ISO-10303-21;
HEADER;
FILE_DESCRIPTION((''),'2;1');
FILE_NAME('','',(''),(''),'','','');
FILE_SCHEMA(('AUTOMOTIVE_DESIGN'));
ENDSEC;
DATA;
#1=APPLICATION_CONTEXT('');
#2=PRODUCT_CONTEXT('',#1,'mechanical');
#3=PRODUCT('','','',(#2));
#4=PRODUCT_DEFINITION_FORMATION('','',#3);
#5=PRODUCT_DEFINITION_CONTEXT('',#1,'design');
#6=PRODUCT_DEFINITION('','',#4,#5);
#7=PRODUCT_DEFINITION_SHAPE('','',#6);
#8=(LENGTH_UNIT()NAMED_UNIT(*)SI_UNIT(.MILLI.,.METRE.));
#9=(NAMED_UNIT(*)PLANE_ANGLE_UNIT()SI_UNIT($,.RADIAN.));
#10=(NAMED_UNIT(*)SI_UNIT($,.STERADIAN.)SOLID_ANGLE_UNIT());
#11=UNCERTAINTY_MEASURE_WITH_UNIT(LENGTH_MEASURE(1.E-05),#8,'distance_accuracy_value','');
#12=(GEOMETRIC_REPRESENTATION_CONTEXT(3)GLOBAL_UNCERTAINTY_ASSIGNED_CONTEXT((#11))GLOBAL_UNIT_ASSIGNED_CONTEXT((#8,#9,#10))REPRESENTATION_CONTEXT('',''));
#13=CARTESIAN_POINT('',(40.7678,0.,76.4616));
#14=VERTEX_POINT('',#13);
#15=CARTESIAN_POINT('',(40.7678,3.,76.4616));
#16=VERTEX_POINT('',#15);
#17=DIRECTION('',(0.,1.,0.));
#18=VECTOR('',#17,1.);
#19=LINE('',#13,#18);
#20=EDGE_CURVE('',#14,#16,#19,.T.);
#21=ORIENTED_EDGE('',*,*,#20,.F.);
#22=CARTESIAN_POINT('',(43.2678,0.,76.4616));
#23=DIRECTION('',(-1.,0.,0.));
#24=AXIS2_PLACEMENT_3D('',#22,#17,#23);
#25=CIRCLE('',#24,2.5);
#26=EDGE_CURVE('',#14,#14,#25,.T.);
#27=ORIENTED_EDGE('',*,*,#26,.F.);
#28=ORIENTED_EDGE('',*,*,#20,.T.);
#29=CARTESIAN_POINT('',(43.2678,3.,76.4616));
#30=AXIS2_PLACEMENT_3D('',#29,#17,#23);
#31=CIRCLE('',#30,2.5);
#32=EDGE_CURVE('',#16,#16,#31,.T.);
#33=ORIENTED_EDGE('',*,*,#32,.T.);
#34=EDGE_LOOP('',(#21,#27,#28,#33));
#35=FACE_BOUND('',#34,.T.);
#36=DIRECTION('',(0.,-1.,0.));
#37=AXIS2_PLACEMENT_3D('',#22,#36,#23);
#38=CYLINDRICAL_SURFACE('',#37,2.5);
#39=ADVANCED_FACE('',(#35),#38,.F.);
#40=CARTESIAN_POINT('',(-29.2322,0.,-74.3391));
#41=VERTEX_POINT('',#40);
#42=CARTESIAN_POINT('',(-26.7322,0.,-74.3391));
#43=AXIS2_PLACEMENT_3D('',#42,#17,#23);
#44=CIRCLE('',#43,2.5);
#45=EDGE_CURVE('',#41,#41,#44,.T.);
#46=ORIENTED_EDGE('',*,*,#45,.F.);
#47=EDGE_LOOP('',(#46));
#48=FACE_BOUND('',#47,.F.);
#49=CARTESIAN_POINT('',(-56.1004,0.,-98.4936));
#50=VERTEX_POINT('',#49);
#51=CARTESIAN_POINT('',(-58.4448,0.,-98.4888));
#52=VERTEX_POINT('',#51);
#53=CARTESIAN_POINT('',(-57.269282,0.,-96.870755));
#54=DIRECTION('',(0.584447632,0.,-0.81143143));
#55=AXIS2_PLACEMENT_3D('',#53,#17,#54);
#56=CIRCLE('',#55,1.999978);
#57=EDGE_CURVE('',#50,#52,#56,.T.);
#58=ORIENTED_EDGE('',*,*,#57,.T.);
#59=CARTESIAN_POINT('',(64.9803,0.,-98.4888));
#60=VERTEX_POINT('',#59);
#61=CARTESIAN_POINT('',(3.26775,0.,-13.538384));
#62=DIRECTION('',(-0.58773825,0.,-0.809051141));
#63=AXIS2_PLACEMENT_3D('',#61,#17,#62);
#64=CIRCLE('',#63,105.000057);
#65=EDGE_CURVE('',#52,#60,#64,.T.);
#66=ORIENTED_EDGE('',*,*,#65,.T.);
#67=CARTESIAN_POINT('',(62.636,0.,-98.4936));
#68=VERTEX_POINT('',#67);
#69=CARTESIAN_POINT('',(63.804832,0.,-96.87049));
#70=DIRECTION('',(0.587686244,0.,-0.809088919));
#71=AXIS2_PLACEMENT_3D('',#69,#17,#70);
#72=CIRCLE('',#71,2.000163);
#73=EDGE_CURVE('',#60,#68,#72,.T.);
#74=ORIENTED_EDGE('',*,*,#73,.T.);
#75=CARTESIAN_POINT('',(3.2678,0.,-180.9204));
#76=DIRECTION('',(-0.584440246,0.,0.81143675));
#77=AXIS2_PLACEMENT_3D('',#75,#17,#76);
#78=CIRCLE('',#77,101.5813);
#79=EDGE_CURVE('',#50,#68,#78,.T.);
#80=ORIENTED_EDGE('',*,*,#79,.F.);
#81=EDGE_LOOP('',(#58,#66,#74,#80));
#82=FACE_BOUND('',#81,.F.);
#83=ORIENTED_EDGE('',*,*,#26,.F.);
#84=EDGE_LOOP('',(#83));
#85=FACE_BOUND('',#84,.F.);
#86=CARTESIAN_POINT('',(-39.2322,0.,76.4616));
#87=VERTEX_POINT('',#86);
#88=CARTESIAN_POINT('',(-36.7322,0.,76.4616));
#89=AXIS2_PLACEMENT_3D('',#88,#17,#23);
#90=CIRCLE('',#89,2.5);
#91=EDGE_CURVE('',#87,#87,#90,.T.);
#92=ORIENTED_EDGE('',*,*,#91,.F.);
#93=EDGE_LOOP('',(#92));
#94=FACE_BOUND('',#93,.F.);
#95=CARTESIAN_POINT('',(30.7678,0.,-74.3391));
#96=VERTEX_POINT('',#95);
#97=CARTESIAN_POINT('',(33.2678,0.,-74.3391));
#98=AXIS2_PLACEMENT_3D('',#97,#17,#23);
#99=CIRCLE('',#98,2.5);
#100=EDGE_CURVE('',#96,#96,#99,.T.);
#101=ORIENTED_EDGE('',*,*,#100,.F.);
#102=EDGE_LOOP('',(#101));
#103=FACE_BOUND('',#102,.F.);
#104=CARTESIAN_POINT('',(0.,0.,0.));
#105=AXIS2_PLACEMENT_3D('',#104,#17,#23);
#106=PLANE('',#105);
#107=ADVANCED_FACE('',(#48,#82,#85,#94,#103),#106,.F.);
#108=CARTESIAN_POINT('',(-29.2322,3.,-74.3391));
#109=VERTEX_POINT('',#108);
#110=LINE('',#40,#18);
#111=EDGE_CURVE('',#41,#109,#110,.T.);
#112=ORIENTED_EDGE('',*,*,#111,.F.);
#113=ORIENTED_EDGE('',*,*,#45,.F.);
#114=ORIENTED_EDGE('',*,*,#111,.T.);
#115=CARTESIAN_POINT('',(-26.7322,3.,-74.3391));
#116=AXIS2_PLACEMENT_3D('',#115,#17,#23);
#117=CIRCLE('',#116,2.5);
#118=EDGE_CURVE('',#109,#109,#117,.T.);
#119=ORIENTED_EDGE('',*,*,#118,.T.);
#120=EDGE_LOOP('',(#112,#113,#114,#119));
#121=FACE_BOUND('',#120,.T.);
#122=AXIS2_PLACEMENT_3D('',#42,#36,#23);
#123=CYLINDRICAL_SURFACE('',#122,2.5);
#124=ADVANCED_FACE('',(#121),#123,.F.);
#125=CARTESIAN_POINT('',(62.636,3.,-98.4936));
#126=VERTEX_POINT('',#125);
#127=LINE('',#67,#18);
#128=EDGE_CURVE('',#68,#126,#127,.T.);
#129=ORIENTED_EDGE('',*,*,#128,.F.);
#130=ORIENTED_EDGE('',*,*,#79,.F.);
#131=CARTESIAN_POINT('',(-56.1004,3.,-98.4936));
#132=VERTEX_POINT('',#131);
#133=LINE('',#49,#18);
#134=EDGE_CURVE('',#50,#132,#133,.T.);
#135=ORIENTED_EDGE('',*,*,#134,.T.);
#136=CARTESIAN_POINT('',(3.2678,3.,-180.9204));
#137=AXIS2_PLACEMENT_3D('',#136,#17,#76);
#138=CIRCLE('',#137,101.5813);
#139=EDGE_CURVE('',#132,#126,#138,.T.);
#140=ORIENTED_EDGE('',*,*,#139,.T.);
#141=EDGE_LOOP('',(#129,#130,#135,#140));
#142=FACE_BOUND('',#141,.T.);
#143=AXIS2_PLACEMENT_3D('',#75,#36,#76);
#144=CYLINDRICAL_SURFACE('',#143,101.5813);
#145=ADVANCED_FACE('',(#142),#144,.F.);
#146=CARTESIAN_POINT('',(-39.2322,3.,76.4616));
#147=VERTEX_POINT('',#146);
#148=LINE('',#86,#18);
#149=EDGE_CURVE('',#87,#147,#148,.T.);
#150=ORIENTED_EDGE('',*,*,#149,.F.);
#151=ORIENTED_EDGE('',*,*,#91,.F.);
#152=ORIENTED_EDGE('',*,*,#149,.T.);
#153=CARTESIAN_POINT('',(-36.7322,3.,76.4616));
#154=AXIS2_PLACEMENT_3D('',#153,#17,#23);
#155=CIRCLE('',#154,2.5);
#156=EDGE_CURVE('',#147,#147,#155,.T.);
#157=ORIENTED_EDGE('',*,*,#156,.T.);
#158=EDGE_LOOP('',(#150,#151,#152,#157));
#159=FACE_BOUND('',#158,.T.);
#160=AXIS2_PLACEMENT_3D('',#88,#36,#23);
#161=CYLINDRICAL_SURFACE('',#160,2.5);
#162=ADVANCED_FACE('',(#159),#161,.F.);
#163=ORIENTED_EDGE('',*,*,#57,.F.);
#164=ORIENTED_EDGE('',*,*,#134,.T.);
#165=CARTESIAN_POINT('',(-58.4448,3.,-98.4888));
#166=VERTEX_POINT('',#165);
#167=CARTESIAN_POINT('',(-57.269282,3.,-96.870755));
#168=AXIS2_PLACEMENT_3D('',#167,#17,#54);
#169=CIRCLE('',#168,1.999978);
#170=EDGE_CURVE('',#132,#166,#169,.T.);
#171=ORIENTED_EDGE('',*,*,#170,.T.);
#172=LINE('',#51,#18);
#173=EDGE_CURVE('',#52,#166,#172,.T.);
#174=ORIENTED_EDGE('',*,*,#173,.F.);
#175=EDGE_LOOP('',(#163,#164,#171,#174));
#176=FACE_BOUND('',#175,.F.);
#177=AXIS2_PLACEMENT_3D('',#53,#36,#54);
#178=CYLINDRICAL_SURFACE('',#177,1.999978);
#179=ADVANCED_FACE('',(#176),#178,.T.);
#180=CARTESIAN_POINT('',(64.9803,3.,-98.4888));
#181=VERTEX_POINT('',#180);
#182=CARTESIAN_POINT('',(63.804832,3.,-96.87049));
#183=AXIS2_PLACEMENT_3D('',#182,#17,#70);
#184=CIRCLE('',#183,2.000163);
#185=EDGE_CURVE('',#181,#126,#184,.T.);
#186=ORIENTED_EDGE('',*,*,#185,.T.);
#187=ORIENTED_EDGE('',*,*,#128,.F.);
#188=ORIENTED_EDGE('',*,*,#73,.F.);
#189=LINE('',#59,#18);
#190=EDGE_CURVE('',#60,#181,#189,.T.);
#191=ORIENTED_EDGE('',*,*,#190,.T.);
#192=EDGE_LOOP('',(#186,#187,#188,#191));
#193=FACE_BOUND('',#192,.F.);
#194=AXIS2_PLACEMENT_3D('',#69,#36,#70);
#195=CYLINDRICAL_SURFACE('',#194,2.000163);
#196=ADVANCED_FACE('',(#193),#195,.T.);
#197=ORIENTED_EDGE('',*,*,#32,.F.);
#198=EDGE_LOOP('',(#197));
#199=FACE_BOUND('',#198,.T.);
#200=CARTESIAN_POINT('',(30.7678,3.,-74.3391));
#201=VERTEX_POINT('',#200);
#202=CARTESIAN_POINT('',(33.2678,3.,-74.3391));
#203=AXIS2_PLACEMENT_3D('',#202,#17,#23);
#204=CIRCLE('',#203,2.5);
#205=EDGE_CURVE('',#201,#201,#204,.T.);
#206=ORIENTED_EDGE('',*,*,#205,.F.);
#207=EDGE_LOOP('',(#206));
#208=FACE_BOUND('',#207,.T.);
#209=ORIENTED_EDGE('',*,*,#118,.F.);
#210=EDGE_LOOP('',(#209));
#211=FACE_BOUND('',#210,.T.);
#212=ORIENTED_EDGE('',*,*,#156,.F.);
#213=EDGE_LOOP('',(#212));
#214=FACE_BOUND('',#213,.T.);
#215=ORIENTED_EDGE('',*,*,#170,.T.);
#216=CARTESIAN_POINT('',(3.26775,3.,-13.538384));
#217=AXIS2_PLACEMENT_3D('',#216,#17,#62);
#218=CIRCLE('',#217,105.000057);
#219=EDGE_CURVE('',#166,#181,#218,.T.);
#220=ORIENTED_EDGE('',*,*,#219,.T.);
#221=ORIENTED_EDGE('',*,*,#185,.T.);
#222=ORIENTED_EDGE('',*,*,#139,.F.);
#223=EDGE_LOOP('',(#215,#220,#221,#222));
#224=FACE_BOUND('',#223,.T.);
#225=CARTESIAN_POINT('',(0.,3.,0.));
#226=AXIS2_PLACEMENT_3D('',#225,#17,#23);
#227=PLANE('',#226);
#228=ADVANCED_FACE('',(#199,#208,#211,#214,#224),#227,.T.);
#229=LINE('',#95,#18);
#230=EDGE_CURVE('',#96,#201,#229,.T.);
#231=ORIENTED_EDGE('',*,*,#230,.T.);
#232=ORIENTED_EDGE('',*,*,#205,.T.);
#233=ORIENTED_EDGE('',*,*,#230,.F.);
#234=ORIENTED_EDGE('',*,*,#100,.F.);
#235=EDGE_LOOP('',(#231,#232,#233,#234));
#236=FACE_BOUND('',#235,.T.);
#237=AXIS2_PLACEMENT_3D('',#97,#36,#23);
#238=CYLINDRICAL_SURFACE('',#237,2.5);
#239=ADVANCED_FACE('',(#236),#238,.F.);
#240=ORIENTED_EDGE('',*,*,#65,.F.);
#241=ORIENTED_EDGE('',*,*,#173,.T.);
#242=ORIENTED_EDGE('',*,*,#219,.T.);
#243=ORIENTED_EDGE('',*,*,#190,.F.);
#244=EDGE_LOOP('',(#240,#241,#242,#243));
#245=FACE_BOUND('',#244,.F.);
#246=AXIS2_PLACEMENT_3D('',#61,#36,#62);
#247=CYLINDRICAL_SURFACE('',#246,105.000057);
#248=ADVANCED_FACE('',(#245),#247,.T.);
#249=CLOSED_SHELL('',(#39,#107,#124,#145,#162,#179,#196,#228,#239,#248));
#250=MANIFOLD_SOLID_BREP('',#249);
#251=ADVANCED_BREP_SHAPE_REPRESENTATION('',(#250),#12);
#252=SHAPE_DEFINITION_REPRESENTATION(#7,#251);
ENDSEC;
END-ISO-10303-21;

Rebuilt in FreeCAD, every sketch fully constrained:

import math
import FreeCAD as App
import Part
import Sketcher

V = App.Vector

doc = App.newDocument("Part")
body = doc.addObject("PartDesign::Body", "Body")

# Sketch on XZ plane
sketch1 = doc.addObject("Sketcher::SketchObject", "Sketch")
body.addObject(sketch1)
sketch1.AttachmentSupport = (doc.XZ_Plane, [""])
sketch1.MapMode = "FlatFace"
sketch1.addGeometry(Part.ArcOfCircle(Part.Circle(V(3.2678, -180.9204, 0), V(0, 0, 1), 101.5813), math.radians(54.236544), math.radians(125.763456)), False)
sketch1.addGeometry(Part.ArcOfCircle(Part.Circle(V(-57.2693, -96.8707, 0), V(0, 0, 1), 2.000033), math.radians(-125.997254), math.radians(-54.236534)), False)
sketch1.addGeometry(Part.ArcOfCircle(Part.Circle(V(3.2678, -13.5384, 0), V(0, 0, 1), 105.000074), math.radians(-54.003346), math.radians(234.003301)), False)
sketch1.addGeometry(Part.ArcOfCircle(Part.Circle(V(63.8049, -96.8707, 0), V(0, 0, 1), 1.999953), math.radians(-125.763466), math.radians(-54.005063)), False)
sketch1.addGeometry(Part.Circle(V(33.2678, -74.3391, 0), V(0, 0, 1), 2.5), False)
sketch1.addGeometry(Part.Circle(V(-26.7322, -74.3391, 0), V(0, 0, 1), 2.5), False)
sketch1.addGeometry(Part.Circle(V(43.2678, 76.4616, 0), V(0, 0, 1), 2.5), False)
sketch1.addGeometry(Part.Circle(V(-36.7322, 76.4616, 0), V(0, 0, 1), 2.5), False)
sketch1.addConstraint(Sketcher.Constraint("Coincident", 0, 2, 1, 2))
sketch1.addConstraint(Sketcher.Constraint("Coincident", 1, 1, 2, 2))
sketch1.addConstraint(Sketcher.Constraint("Coincident", 2, 1, 3, 2))
sketch1.addConstraint(Sketcher.Constraint("Coincident", 3, 1, 0, 1))
sketch1.addConstraint(Sketcher.Constraint("Diameter", 4, 5.0))
sketch1.addConstraint(Sketcher.Constraint("Diameter", 5, 5.0))
sketch1.addConstraint(Sketcher.Constraint("Diameter", 6, 5.0))
sketch1.addConstraint(Sketcher.Constraint("Diameter", 7, 5.0))
sketch1.addConstraint(Sketcher.Constraint("Radius", 1, 2.0))
sketch1.addConstraint(Sketcher.Constraint("Radius", 2, 105.0))
sketch1.addConstraint(Sketcher.Constraint("Radius", 3, 2.0))
sketch1.addConstraint(Sketcher.Constraint("DistanceX", 2, 3, 6, 3, 40.0))
sketch1.addConstraint(Sketcher.Constraint("DistanceY", 2, 3, 6, 3, 90.0))
sketch1.addConstraint(Sketcher.Constraint("DistanceX", 7, 3, 2, 3, 40.0))
sketch1.addConstraint(Sketcher.Constraint("DistanceY", 2, 3, 7, 3, 90.0))
sketch1.addConstraint(Sketcher.Constraint("DistanceX", 2, 3, 4, 3, 30.0))
sketch1.addConstraint(Sketcher.Constraint("DistanceX", 0, 3, 4, 3, 30.0))
sketch1.addConstraint(Sketcher.Constraint("DistanceX", 5, 3, 4, 3, 60.0))
sketch1.addConstraint(Sketcher.Constraint("Radius", 0, 101.5813))
sketch1.addConstraint(Sketcher.Constraint("DistanceX", -1, 1, 3, 3, 63.805))
sketch1.addConstraint(Sketcher.Constraint("DistanceY", 4, 3, -1, 1, 74.339))
sketch1.addConstraint(Sketcher.Constraint("DistanceY", 5, 3, -1, 1, 74.339))
sketch1.addConstraint(Sketcher.Constraint("DistanceX", -1, 1, 3, 1, 62.636))
sketch1.addConstraint(Sketcher.Constraint("DistanceX", 1, 3, 0, 3, 60.537))
sketch1.addConstraint(Sketcher.Constraint("DistanceX", 1, 3, 0, 2, 1.169))
sketch1.addConstraint(Sketcher.Constraint("DistanceY", 1, 1, 1, 3, 1.618))
sketch1.addConstraint(Sketcher.Constraint("DistanceY", 0, 3, -1, 1, 180.9204))
sketch1.addConstraint(Sketcher.Constraint("DistanceX", -1, 1, 2, 1, 64.9803))
pad1 = doc.addObject("PartDesign::Pad", "Pad")
body.addObject(pad1)
pad1.Profile = sketch1
pad1.Length = 3
pad1.Reversed = True

doc.recompute()
